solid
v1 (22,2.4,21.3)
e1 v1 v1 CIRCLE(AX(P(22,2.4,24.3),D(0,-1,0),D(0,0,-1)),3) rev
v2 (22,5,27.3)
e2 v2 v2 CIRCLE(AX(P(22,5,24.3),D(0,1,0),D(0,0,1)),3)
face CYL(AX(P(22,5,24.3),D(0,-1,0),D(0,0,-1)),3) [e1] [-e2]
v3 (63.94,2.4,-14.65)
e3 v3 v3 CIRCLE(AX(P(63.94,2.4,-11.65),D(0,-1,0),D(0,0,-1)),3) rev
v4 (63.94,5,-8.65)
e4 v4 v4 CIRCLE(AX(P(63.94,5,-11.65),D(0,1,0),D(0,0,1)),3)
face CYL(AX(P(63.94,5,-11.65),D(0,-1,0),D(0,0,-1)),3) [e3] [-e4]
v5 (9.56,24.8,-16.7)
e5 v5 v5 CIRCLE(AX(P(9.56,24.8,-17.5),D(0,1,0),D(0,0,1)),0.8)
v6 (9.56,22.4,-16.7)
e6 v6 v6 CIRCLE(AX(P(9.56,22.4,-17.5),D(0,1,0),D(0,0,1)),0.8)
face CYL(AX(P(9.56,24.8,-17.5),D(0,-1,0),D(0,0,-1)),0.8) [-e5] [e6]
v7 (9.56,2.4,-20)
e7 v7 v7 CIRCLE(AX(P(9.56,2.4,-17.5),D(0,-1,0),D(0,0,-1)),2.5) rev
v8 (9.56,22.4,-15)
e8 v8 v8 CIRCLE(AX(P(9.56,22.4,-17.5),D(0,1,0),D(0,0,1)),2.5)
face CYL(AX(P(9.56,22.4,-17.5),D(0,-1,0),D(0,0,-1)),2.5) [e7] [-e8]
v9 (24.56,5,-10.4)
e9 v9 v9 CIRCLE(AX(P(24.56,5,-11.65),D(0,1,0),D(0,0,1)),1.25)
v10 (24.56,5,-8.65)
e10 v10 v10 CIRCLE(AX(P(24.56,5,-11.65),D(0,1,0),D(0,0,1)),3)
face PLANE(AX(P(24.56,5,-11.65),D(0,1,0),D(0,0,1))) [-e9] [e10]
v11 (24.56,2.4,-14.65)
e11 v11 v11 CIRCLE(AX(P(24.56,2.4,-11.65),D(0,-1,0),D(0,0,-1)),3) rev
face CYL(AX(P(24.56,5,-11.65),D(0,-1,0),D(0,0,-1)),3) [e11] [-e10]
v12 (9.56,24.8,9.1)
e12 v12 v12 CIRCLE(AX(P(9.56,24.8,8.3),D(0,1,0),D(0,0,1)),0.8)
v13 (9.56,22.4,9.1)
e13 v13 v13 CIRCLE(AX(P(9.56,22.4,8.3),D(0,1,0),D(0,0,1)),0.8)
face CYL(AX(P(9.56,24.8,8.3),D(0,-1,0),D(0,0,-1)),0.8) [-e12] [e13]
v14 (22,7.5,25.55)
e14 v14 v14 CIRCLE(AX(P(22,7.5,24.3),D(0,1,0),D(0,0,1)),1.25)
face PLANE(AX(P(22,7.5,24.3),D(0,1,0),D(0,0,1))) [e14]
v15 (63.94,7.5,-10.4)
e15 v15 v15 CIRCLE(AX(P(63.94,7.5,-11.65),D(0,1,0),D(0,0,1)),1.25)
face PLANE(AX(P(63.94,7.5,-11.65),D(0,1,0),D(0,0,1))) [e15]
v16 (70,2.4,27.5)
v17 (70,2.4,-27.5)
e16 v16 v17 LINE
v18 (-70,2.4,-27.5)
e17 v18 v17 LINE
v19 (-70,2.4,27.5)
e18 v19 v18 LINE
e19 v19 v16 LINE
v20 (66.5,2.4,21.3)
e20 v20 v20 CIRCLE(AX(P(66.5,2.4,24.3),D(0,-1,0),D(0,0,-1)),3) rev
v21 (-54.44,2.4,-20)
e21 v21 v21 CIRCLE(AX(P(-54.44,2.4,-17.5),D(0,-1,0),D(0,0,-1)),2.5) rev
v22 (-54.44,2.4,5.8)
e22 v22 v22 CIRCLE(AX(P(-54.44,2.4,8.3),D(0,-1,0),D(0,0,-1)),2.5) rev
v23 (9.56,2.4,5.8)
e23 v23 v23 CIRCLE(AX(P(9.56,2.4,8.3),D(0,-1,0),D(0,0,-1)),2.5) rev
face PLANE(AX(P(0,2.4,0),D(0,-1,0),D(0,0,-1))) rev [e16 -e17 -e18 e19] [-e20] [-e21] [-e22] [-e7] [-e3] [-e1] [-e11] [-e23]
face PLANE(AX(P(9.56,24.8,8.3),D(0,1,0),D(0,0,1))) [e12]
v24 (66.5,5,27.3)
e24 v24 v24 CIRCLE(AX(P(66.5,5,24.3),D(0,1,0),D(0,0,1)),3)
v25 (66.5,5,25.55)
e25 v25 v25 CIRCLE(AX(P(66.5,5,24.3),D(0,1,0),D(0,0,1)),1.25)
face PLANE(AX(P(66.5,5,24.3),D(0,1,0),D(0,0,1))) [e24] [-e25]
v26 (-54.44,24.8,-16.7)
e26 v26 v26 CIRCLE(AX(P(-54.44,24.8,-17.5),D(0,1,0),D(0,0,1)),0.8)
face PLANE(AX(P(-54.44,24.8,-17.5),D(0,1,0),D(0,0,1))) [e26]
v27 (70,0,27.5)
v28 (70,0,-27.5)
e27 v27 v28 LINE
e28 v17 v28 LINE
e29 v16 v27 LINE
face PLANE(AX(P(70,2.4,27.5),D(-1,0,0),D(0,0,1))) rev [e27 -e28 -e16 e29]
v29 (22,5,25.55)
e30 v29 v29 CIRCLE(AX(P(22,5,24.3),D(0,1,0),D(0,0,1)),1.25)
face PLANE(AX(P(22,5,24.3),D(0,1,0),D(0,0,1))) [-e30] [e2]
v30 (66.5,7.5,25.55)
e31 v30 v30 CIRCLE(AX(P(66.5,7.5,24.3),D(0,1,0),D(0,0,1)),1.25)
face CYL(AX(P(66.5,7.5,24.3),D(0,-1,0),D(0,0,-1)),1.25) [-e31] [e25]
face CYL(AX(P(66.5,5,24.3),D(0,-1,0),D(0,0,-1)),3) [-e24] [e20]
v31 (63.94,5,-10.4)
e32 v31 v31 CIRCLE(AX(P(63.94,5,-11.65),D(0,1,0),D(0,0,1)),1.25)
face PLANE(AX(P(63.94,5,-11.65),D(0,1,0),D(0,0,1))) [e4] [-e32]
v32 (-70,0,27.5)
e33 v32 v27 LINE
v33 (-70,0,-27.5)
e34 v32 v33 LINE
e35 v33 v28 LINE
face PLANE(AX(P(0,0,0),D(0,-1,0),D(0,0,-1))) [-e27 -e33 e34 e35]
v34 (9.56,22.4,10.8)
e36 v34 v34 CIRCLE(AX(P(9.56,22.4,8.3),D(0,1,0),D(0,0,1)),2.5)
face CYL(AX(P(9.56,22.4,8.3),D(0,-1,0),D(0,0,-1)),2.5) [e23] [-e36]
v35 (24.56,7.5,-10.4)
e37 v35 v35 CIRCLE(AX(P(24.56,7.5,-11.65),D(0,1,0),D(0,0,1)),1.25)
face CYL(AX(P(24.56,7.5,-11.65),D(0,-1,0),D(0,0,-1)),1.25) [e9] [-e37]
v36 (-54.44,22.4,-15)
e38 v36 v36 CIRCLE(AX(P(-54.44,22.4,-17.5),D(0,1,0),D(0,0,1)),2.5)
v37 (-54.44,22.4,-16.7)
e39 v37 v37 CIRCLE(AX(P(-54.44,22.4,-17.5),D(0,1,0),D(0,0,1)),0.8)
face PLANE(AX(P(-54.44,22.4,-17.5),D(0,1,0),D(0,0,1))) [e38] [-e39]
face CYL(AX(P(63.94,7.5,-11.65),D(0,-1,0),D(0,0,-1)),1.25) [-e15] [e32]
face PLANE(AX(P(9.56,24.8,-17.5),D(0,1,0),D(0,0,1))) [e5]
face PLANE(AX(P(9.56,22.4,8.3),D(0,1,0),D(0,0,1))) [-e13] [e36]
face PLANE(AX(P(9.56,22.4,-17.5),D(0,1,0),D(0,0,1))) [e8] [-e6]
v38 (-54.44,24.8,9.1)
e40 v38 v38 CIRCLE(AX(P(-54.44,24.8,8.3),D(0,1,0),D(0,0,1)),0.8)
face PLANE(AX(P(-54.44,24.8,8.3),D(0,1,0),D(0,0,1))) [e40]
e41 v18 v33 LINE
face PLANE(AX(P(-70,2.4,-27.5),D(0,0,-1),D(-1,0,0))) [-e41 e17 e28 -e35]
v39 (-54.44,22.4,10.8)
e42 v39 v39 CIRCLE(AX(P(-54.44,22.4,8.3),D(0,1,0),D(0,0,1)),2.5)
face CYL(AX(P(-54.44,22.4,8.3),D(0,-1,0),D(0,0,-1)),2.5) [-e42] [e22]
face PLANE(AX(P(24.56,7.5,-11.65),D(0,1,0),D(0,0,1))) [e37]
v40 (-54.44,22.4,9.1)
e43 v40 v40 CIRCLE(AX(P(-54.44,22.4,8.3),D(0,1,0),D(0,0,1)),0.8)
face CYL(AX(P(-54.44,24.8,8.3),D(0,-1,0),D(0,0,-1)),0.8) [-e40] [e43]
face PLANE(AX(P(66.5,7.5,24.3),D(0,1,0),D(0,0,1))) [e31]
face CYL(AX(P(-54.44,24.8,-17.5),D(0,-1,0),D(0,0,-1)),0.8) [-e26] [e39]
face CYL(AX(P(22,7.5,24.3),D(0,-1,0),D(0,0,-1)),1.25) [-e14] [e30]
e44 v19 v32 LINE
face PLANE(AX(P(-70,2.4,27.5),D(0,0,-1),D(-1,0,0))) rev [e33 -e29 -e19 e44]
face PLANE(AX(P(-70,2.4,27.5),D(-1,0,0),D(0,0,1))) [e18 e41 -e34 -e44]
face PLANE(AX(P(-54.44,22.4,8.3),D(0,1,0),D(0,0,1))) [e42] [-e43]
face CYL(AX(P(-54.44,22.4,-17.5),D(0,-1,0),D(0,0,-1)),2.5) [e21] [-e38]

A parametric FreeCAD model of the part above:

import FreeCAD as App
import Part
import Sketcher

V = App.Vector
Q = App.Units.Quantity


def add_polygon(sketch, points):
    """Adds a closed chain of lines whose ends are joined by coincident constraints."""
    first, n = sketch.GeometryCount, len(points)
    for a, b in zip(points, points[1:] + points[:1]):
        sketch.addGeometry(Part.LineSegment(App.Vector(*a, 0), App.Vector(*b, 0)), False)
    for i in range(n):
        sketch.addConstraint(Sketcher.Constraint("Coincident", first + i, 2, first + (i + 1) % n, 1))

doc = App.newDocument("Part")
body = doc.addObject("PartDesign::Body", "Body")

# Sketch on XZ plane
sketch1 = body.newObject("Sketcher::SketchObject", "Sketch")
sketch1.AttachmentSupport = (doc.getObject("XZ_Plane"), [""])
sketch1.MapMode = "FlatFace"
add_polygon(sketch1, [(-70, -28), (-70, 28), (70, 28), (70, -28)])  # lines 0-3
sketch1.addConstraint([
    Sketcher.Constraint("Vertical", 0),
    Sketcher.Constraint("Horizontal", 1),
    Sketcher.Constraint("Vertical", 2),
    Sketcher.Constraint("Horizontal", 3),
    Sketcher.Constraint("Symmetric", 0, 2, 2, 2, -1, 1),
    Sketcher.Constraint("DistanceX", 1, 1, 1, 2, Q("140 mm")),
    Sketcher.Constraint("DistanceY", 0, 1, 0, 2, Q("55 mm")),
])
pad1 = body.newObject("PartDesign::Pad", "Pad")
pad1.Profile = sketch1
pad1.Length = 2.4
pad1.Reversed = True

# Sketch on XZ plane
sketch2 = body.newObject("Sketcher::SketchObject", "Sketch001")
sketch2.AttachmentSupport = (doc.getObject("XZ_Plane"), [""])
sketch2.MapMode = "FlatFace"
sketch2.AttachmentOffset = App.Placement(V(0, 0, -2.4), App.Rotation())
sketch2.addGeometry([
    Part.Circle(V(66.5, 24.3, 0), V(0, 0, 1), 3),
    Part.Circle(V(63.9, -11.7, 0), V(0, 0, 1), 3),
    Part.Circle(V(22, 24.3, 0), V(0, 0, 1), 3),
    Part.Circle(V(24.6, -11.7, 0), V(0, 0, 1), 3),
], False)
sketch2.addConstraint([
    Sketcher.Constraint("Equal", 0, 1),
    Sketcher.Constraint("Equal", 1, 2),
    Sketcher.Constraint("Equal", 2, 3),
    Sketcher.Constraint("Horizontal", 0, 3, 2, 3),
    Sketcher.Constraint("Horizontal", 1, 3, 3, 3),
    Sketcher.Constraint("Diameter", 0, Q("6 mm")),
    Sketcher.Constraint("DistanceX", -1, 1, 2, 3, Q("22 mm")),
    Sketcher.Constraint("DistanceX", -1, 1, 0, 3, Q("66.5 mm")),
    Sketcher.Constraint("DistanceY", -1, 1, 0, 3, Q("24.3 mm")),
    Sketcher.Constraint("DistanceX", -1, 1, 1, 3, Q("63.94 mm")),
    Sketcher.Constraint("DistanceY", 1, 3, -1, 1, Q("11.65 mm")),
    Sketcher.Constraint("DistanceX", -1, 1, 3, 3, Q("24.56 mm")),
])
pad2 = body.newObject("PartDesign::Pad", "Pad001")
pad2.Profile = sketch2
pad2.Length = 2.6
pad2.Reversed = True

# Sketch on XZ plane
sketch3 = body.newObject("Sketcher::SketchObject", "Sketch002")
sketch3.AttachmentSupport = (doc.getObject("XZ_Plane"), [""])
sketch3.MapMode = "FlatFace"
sketch3.AttachmentOffset = App.Placement(V(0, 0, -5), App.Rotation())
sketch3.addGeometry([
    Part.Circle(V(22, 24.3, 0), V(0, 0, 1), 1.2),
    Part.Circle(V(24.6, -11.7, 0), V(0, 0, 1), 1.2),
    Part.Circle(V(66.5, 24.3, 0), V(0, 0, 1), 1.2),
    Part.Circle(V(63.9, -11.7, 0), V(0, 0, 1), 1.2),
], False)
sketch3.addConstraint([
    Sketcher.Constraint("Equal", 0, 1),
    Sketcher.Constraint("Equal", 1, 2),
    Sketcher.Constraint("Equal", 2, 3),
    Sketcher.Constraint("Horizontal", 0, 3, 2, 3),
    Sketcher.Constraint("Horizontal", 1, 3, 3, 3),
    Sketcher.Constraint("Diameter", 0, Q("2.5 mm")),
    Sketcher.Constraint("DistanceX", -1, 1, 0, 3, Q("22 mm")),
    Sketcher.Constraint("DistanceY", -1, 1, 0, 3, Q("24.3 mm")),
    Sketcher.Constraint("DistanceX", -1, 1, 2, 3, Q("66.5 mm")),
    Sketcher.Constraint("DistanceX", -1, 1, 1, 3, Q("24.56 mm")),
    Sketcher.Constraint("DistanceY", 1, 3, -1, 1, Q("11.65 mm")),
    Sketcher.Constraint("DistanceX", -1, 1, 3, 3, Q("63.94 mm")),
])
pad3 = body.newObject("PartDesign::Pad", "Pad002")
pad3.Profile = sketch3
pad3.Length = 2.5
pad3.Reversed = True

# Sketch on XZ plane
sketch4 = body.newObject("Sketcher::SketchObject", "Sketch003")
sketch4.AttachmentSupport = (doc.getObject("XZ_Plane"), [""])
sketch4.MapMode = "FlatFace"
sketch4.AttachmentOffset = App.Placement(V(0, 0, -2.4), App.Rotation())
sketch4.addGeometry([
    Part.Circle(V(9.6, -17.5, 0), V(0, 0, 1), 2.5),
    Part.Circle(V(-54.4, -17.5, 0), V(0, 0, 1), 2.5),
    Part.Circle(V(-54.4, 8.3, 0), V(0, 0, 1), 2.5),
    Part.Circle(V(9.6, 8.3, 0), V(0, 0, 1), 2.5),
], False)
sketch4.addConstraint([
    Sketcher.Constraint("Equal", 0, 1),
    Sketcher.Constraint("Equal", 1, 2),
    Sketcher.Constraint("Equal", 2, 3),
    Sketcher.Constraint("Horizontal", 0, 3, 1, 3),
    Sketcher.Constraint("Horizontal", 2, 3, 3, 3),
    Sketcher.Constraint("Vertical", 1, 3, 2, 3),
    Sketcher.Constraint("Vertical", 0, 3, 3, 3),
    Sketcher.Constraint("Diameter", 0, Q("5 mm")),
    Sketcher.Constraint("DistanceX", 1, 3, 0, 3, Q("64 mm")),
    Sketcher.Constraint("DistanceY", 0, 3, -1, 1, Q("17.5 mm")),
    Sketcher.Constraint("DistanceY", -1, 1, 2, 3, Q("8.3 mm")),
    Sketcher.Constraint("DistanceX", -1, 1, 0, 3, Q("9.56 mm")),
])
pad4 = body.newObject("PartDesign::Pad", "Pad003")
pad4.Profile = sketch4
pad4.Length = 20
pad4.Reversed = True

# Sketch on XZ plane
sketch5 = body.newObject("Sketcher::SketchObject", "Sketch004")
sketch5.AttachmentSupport = (doc.getObject("XZ_Plane"), [""])
sketch5.MapMode = "FlatFace"
sketch5.AttachmentOffset = App.Placement(V(0, 0, -22.4), App.Rotation())
sketch5.addGeometry([
    Part.Circle(V(9.6, 8.3, 0), V(0, 0, 1), 0.8),
    Part.Circle(V(9.6, -17.5, 0), V(0, 0, 1), 0.8),
    Part.Circle(V(-54.4, -17.5, 0), V(0, 0, 1), 0.8),
    Part.Circle(V(-54.4, 8.3, 0), V(0, 0, 1), 0.8),
], False)
sketch5.addConstraint([
    Sketcher.Constraint("Equal", 0, 1),
    Sketcher.Constraint("Equal", 1, 2),
    Sketcher.Constraint("Equal", 2, 3),
    Sketcher.Constraint("Horizontal", 1, 3, 2, 3),
    Sketcher.Constraint("Horizontal", 0, 3, 3, 3),
    Sketcher.Constraint("Vertical", 0, 3, 1, 3),
    Sketcher.Constraint("Vertical", 2, 3, 3, 3),
    Sketcher.Constraint("Diameter", 0, Q("1.6 mm")),
    Sketcher.Constraint("DistanceX", 2, 3, 1, 3, Q("64 mm")),
    Sketcher.Constraint("DistanceY", -1, 1, 0, 3, Q("8.3 mm")),
    Sketcher.Constraint("DistanceY", 1, 3, -1, 1, Q("17.5 mm")),
    Sketcher.Constraint("DistanceX", -1, 1, 0, 3, Q("9.56 mm")),
])
pad5 = body.newObject("PartDesign::Pad", "Pad004")
pad5.Profile = sketch5
pad5.Length = 2.4
pad5.Reversed = True

doc.recompute()
